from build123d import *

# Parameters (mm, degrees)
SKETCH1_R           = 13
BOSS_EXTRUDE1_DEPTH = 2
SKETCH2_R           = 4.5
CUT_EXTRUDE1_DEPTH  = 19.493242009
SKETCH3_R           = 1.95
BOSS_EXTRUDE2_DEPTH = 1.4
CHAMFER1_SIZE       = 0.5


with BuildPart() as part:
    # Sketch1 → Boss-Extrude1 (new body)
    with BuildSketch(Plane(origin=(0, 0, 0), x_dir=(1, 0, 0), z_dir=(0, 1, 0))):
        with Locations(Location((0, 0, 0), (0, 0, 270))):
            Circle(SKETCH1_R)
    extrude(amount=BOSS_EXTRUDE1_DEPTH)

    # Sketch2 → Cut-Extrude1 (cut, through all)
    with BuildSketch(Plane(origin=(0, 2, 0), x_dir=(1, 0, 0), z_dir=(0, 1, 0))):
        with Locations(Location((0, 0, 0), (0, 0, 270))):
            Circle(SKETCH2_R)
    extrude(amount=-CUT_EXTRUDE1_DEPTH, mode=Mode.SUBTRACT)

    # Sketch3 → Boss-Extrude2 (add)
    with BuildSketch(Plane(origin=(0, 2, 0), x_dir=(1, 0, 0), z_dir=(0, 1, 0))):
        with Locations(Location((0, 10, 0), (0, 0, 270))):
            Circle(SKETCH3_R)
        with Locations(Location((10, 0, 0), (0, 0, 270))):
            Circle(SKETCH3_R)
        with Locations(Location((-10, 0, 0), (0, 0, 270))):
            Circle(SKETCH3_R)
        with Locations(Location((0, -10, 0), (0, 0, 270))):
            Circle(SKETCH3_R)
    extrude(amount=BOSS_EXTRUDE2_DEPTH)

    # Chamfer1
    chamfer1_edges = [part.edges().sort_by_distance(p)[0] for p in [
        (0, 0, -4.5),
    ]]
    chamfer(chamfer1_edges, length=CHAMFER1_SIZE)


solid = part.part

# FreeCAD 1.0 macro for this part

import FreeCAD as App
import Part
import Sketcher
from FreeCAD import Vector
Q = App.Units.Quantity


def edges_at(feature, points):
    """Names of the edges that pass closest to the given points."""
    edges = feature.Shape.Edges
    near = lambda p: min(range(len(edges)), key=lambda i: edges[i].distToShape(Part.Vertex(*p))[0])
    return sorted({f"Edge{near(p) + 1}" for p in points})

doc = App.newDocument("Part")
params = doc.addObject("Spreadsheet::Sheet", "Params")
for row, (alias, value) in enumerate([
    ("sketch1_diameter", "26 mm"),
    ("pad1_length", "2 mm"),
    ("sketch2_diameter", "9 mm"),
    ("sketch3_diameter", "3.9 mm"),
    ("pad2_length", "1.4 mm"),
    ("chamfer_size", "0.5 mm"),
], start=1):
    params.set(f"A{row}", alias)
    params.set(f"B{row}", "=" + value)
    params.setAlias(f"B{row}", alias)

body = doc.addObject("PartDesign::Body", "Body")

# Sketch on XZ plane
sketch1 = body.newObject("Sketcher::SketchObject", "Sketch")
sketch1.AttachmentSupport = (doc.getObject("XZ_Plane"), [""])
sketch1.MapMode = "FlatFace"
sketch1.addGeometry(Part.Circle(Vector(0, 0, 0), Vector(0, 0, 1), 13), False)
sketch1.addConstraint([
    Sketcher.Constraint("Coincident", 0, 3, -1, 1),
    Sketcher.Constraint("Diameter", 0, Q("26 mm")),
])
sketch1.setExpression("Constraints[1]", "Params.sketch1_diameter")
pad1 = body.newObject("PartDesign::Pad", "Pad")
pad1.Profile = sketch1
pad1.setExpression("Length", "Params.pad1_length")
pad1.Reversed = True

# Sketch on XZ plane
sketch2 = body.newObject("Sketcher::SketchObject", "Sketch001")
sketch2.AttachmentSupport = (doc.getObject("XZ_Plane"), [""])
sketch2.MapMode = "FlatFace"
sketch2.AttachmentOffset = App.Placement(Vector(0, 0, -2), App.Rotation())
sketch2.addGeometry(Part.Circle(Vector(0, 0, 0), Vector(0, 0, 1), 4.5), False)
sketch2.addConstraint([
    Sketcher.Constraint("Coincident", 0, 3, -1, 1),
    Sketcher.Constraint("Diameter", 0, Q("9 mm")),
])
sketch2.setExpression("Constraints[1]", "Params.sketch2_diameter")
pocket1 = body.newObject("PartDesign::Pocket", "Pocket")
pocket1.Profile = sketch2
pocket1.Type = "ThroughAll"
pocket1.Reversed = True

# Sketch on XZ plane
sketch3 = body.newObject("Sketcher::SketchObject", "Sketch002")
sketch3.AttachmentSupport = (doc.getObject("XZ_Plane"), [""])
sketch3.MapMode = "FlatFace"
sketch3.AttachmentOffset = App.Placement(Vector(0, 0, -2), App.Rotation())
sketch3.addGeometry([
    Part.Circle(Vector(0, -10, 0), Vector(0, 0, 1), 1.9),
    Part.Circle(Vector(10, 0, 0), Vector(0, 0, 1), 1.9),
    Part.Circle(Vector(-10, 0, 0), Vector(0, 0, 1), 1.9),
    Part.Circle(Vector(0, 10, 0), Vector(0, 0, 1), 1.9),
], False)
sketch3.addConstraint([
    Sketcher.Constraint("Equal", 0, 1),
    Sketcher.Constraint("Equal", 1, 2),
    Sketcher.Constraint("Equal", 2, 3),
    Sketcher.Constraint("Symmetric", 1, 3, 2, 3, -1, 1),
    Sketcher.Constraint("Symmetric", 0, 3, 3, 3, -1, 1),
    Sketcher.Constraint("PointOnObject", 0, 3, -2),
    Sketcher.Constraint("PointOnObject", 1, 3, -1),
    Sketcher.Constraint("Diameter", 0, Q("3.9 mm")),
    Sketcher.Constraint("DistanceY", 0, 3, -1, 1, Q("10 mm")),
    Sketcher.Constraint("DistanceX", -1, 1, 1, 3, Q("10 mm")),
])
sketch3.setExpression("Constraints[7]", "Params.sketch3_diameter")
pad2 = body.newObject("PartDesign::Pad", "Pad001")
pad2.Profile = sketch3
pad2.setExpression("Length", "Params.pad2_length")
pad2.Reversed = True
doc.recompute()

chamfer = body.newObject("PartDesign::Chamfer", "Chamfer")
chamfer.Base = (pad2, edges_at(pad2, [(0, 0, -4.5)]))
chamfer.setExpression("Size", "Params.chamfer_size")

doc.recompute()
